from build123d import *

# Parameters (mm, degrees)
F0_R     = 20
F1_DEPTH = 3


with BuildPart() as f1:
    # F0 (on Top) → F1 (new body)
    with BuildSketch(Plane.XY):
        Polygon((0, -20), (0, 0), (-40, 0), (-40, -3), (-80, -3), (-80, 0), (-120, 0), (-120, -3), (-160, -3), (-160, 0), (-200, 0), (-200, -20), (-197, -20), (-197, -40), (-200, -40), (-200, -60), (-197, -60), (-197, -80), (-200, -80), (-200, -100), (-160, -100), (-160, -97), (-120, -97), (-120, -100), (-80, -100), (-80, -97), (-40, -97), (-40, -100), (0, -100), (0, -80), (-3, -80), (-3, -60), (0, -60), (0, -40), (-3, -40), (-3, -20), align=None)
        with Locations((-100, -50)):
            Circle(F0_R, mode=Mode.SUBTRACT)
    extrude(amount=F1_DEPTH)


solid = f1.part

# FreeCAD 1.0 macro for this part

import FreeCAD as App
import Part
import Sketcher


def add_polygon(sketch, points):
    """Adds a closed chain of lines whose ends are joined by coincident constraints."""
    first, n = sketch.GeometryCount, len(points)
    for a, b in zip(points, points[1:] + points[:1]):
        sketch.addGeometry(Part.LineSegment(App.Vector(*a, 0), App.Vector(*b, 0)), False)
    for i in range(n):
        sketch.addConstraint(Sketcher.Constraint("Coincident", first + i, 2, first + (i + 1) % n, 1))

doc = App.newDocument("Part")
body = doc.addObject("PartDesign::Body", "Body")

sketch1 = body.newObject("Sketcher::SketchObject", "Sketch")
sketch1.AttachmentSupport = (doc.getObject("XY_Plane"), [""])
sketch1.MapMode = "FlatFace"
add_polygon(sketch1, [(0, -20), (0, 0), (-40, 0), (-40, -3), (-80, -3), (-80, 0), (-120, 0), (-120, -3), (-160, -3), (-160, 0), (-200, 0), (-200, -20), (-197, -20), (-197, -40), (-200, -40), (-200, -60), (-197, -60), (-197, -80), (-200, -80), (-200, -100), (-160, -100), (-160, -97), (-120, -97), (-120, -100), (-80, -100), (-80, -97), (-40, -97), (-40, -100), (0, -100), (0, -80), (-3, -80), (-3, -60), (0, -60), (0, -40), (-3, -40), (-3, -20)])
sketch1.addGeometry(Part.Circle(App.Vector(-100, -50, 0), App.Vector(0, 0, 1), 20), False)
sketch1.addConstraint(Sketcher.Constraint("Vertical", 0))
sketch1.addConstraint(Sketcher.Constraint("Horizontal", 1))
sketch1.addConstraint(Sketcher.Constraint("Vertical", 2))
sketch1.addConstraint(Sketcher.Constraint("Horizontal", 3))
sketch1.addConstraint(Sketcher.Constraint("Vertical", 4))
sketch1.addConstraint(Sketcher.Constraint("Horizontal", 5))
sketch1.addConstraint(Sketcher.Constraint("Vertical", 6))
sketch1.addConstraint(Sketcher.Constraint("Horizontal", 7))
sketch1.addConstraint(Sketcher.Constraint("Vertical", 8))
sketch1.addConstraint(Sketcher.Constraint("Horizontal", 9))
sketch1.addConstraint(Sketcher.Constraint("Vertical", 10))
sketch1.addConstraint(Sketcher.Constraint("Horizontal", 11))
sketch1.addConstraint(Sketcher.Constraint("Vertical", 12))
sketch1.addConstraint(Sketcher.Constraint("Horizontal", 13))
sketch1.addConstraint(Sketcher.Constraint("Vertical", 14))
sketch1.addConstraint(Sketcher.Constraint("Horizontal", 15))
sketch1.addConstraint(Sketcher.Constraint("Vertical", 16))
sketch1.addConstraint(Sketcher.Constraint("Horizontal", 17))
sketch1.addConstraint(Sketcher.Constraint("Vertical", 18))
sketch1.addConstraint(Sketcher.Constraint("Horizontal", 19))
sketch1.addConstraint(Sketcher.Constraint("Vertical", 20))
sketch1.addConstraint(Sketcher.Constraint("Horizontal", 21))
sketch1.addConstraint(Sketcher.Constraint("Vertical", 22))
sketch1.addConstraint(Sketcher.Constraint("Horizontal", 23))
sketch1.addConstraint(Sketcher.Constraint("Vertical", 24))
sketch1.addConstraint(Sketcher.Constraint("Horizontal", 25))
sketch1.addConstraint(Sketcher.Constraint("Vertical", 26))
sketch1.addConstraint(Sketcher.Constraint("Horizontal", 27))
sketch1.addConstraint(Sketcher.Constraint("Vertical", 28))
sketch1.addConstraint(Sketcher.Constraint("Horizontal", 29))
sketch1.addConstraint(Sketcher.Constraint("Vertical", 30))
sketch1.addConstraint(Sketcher.Constraint("Horizontal", 31))
sketch1.addConstraint(Sketcher.Constraint("Vertical", 32))
sketch1.addConstraint(Sketcher.Constraint("Horizontal", 33))
sketch1.addConstraint(Sketcher.Constraint("Vertical", 34))
sketch1.addConstraint(Sketcher.Constraint("Horizontal", 35))
sketch1.addConstraint(Sketcher.Constraint("Coincident", 0, 2, -1, 1))
sketch1.addConstraint(Sketcher.Constraint("PointOnObject", 4, 2, -1))
sketch1.addConstraint(Sketcher.Constraint("PointOnObject", 8, 2, -1))
sketch1.addConstraint(Sketcher.Constraint("PointOnObject", 27, 2, -2))
sketch1.addConstraint(Sketcher.Constraint("PointOnObject", 31, 2, -2))
sketch1.addConstraint(Sketcher.Constraint("Horizontal", 3, 2, 6, 2))
sketch1.addConstraint(Sketcher.Constraint("Horizontal", 19, 2, 22, 2))
sketch1.addConstraint(Sketcher.Constraint("Horizontal", 21, 2, 24, 2))
sketch1.addConstraint(Sketcher.Constraint("Horizontal", 23, 2, 26, 2))
sketch1.addConstraint(Sketcher.Constraint("Horizontal", 17, 2, 28, 2))
sketch1.addConstraint(Sketcher.Constraint("Horizontal", 15, 2, 30, 2))
sketch1.addConstraint(Sketcher.Constraint("Horizontal", 13, 2, 32, 2))
sketch1.addConstraint(Sketcher.Constraint("Horizontal", 11, 2, 34, 2))
sketch1.addConstraint(Sketcher.Constraint("Vertical", 10, 2, 13, 2))
sketch1.addConstraint(Sketcher.Constraint("Vertical", 12, 2, 15, 2))
sketch1.addConstraint(Sketcher.Constraint("Vertical", 14, 2, 17, 2))
sketch1.addConstraint(Sketcher.Constraint("Vertical", 8, 2, 19, 2))
sketch1.addConstraint(Sketcher.Constraint("Vertical", 6, 2, 21, 2))
sketch1.addConstraint(Sketcher.Constraint("Vertical", 4, 2, 23, 2))
sketch1.addConstraint(Sketcher.Constraint("Vertical", 2, 2, 25, 2))
sketch1.addConstraint(Sketcher.Constraint("Vertical", 30, 2, 33, 2))
sketch1.addConstraint(Sketcher.Constraint("Equal", 1, 3))
sketch1.addConstraint(Sketcher.Constraint("Equal", 3, 5))
sketch1.addConstraint(Sketcher.Constraint("Equal", 5, 7))
sketch1.addConstraint(Sketcher.Constraint("Equal", 7, 9))
sketch1.addConstraint(Sketcher.Constraint("Equal", 17, 29))
sketch1.addConstraint(Sketcher.Constraint("Equal", 35, 2))
sketch1.addConstraint(Sketcher.Constraint("Equal", 10, 12))
sketch1.addConstraint(Sketcher.Constraint("Equal", 12, 14))
sketch1.addConstraint(Sketcher.Constraint("Equal", 14, 16))
sketch1.addConstraint(Sketcher.Constraint("Equal", 16, 18))
sketch1.addConstraint(Sketcher.Constraint("Equal", 8, 20))
sketch1.addConstraint(Sketcher.Constraint("Diameter", 36, 40.0))
sketch1.addConstraint(Sketcher.Constraint("DistanceX", 1, 2, 1, 1, 40.0))
sketch1.addConstraint(Sketcher.Constraint("DistanceX", 11, 1, 11, 2, 3.0))
sketch1.addConstraint(Sketcher.Constraint("DistanceY", 0, 1, 0, 2, 20.0))
sketch1.addConstraint(Sketcher.Constraint("DistanceX", 36, 3, -1, 1, 100.0))
sketch1.addConstraint(Sketcher.Constraint("DistanceY", 36, 3, -1, 1, 50.0))
pad1 = body.newObject("PartDesign::Pad", "Pad")
pad1.Profile = sketch1
pad1.Length = 3

doc.recompute()
